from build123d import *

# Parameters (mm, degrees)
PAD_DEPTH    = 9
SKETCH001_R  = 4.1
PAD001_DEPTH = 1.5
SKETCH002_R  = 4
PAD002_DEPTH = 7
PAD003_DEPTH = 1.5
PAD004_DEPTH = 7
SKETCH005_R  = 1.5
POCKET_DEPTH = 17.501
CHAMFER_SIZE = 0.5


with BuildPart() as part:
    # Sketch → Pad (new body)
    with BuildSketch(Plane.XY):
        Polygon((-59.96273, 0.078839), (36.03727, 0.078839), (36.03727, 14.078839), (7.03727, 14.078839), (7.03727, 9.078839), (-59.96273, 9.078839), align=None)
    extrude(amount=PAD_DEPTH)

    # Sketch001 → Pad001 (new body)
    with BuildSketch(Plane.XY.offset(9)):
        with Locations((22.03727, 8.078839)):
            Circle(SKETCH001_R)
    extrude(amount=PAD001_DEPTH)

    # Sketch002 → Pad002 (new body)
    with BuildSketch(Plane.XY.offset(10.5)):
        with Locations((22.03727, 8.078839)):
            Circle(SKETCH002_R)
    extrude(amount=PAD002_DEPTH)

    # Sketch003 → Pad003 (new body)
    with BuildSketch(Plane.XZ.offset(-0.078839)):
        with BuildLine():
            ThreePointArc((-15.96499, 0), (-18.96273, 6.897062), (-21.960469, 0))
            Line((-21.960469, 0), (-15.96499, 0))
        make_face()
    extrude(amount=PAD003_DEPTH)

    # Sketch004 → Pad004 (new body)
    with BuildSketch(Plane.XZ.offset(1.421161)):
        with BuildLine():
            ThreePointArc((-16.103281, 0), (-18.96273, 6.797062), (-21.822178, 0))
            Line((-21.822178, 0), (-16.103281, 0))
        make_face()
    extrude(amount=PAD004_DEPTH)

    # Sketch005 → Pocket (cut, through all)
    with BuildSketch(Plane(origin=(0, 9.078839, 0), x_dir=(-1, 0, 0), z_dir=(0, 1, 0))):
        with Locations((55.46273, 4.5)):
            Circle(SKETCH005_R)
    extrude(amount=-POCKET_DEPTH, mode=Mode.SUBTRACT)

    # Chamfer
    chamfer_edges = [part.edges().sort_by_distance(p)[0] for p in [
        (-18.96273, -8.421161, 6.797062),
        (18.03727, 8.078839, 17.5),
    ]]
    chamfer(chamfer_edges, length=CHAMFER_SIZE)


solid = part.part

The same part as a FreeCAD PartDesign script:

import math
import FreeCAD as App
import Part
import Sketcher
from FreeCAD import Vector


def edges_at(feature, points):
    """Names of the edges that pass closest to the given points."""
    edges = feature.Shape.Edges
    near = lambda p: min(range(len(edges)), key=lambda i: edges[i].distToShape(Part.Vertex(*p))[0])
    return sorted({f"Edge{near(p) + 1}" for p in points})

doc = App.newDocument("Part")
body = doc.addObject("PartDesign::Body", "Body")

sketch1 = doc.addObject("Sketcher::SketchObject", "Sketch")
body.addObject(sketch1)
sketch1.AttachmentSupport = (doc.XY_Plane, [""])
sketch1.MapMode = "FlatFace"
sketch1.addGeometry(Part.LineSegment(Vector(-60, 0, 0), Vector(36, 0, 0)), False)
sketch1.addGeometry(Part.LineSegment(Vector(36, 0, 0), Vector(36, 14, 0)), False)
sketch1.addGeometry(Part.LineSegment(Vector(36, 14, 0), Vector(7, 14, 0)), False)
sketch1.addGeometry(Part.LineSegment(Vector(7, 14, 0), Vector(7, 9, 0)), False)
sketch1.addGeometry(Part.LineSegment(Vector(7, 9, 0), Vector(-60, 9, 0)), False)
sketch1.addGeometry(Part.LineSegment(Vector(-60, 9, 0), Vector(-60, 0, 0)), False)
sketch1.addConstraint(Sketcher.Constraint("Coincident", 0, 2, 1, 1))
sketch1.addConstraint(Sketcher.Constraint("Coincident", 1, 2, 2, 1))
sketch1.addConstraint(Sketcher.Constraint("Coincident", 2, 2, 3, 1))
sketch1.addConstraint(Sketcher.Constraint("Coincident", 3, 2, 4, 1))
sketch1.addConstraint(Sketcher.Constraint("Coincident", 4, 2, 5, 1))
sketch1.addConstraint(Sketcher.Constraint("Coincident", 5, 2, 0, 1))
sketch1.addConstraint(Sketcher.Constraint("Horizontal", 0))
sketch1.addConstraint(Sketcher.Constraint("Vertical", 1))
sketch1.addConstraint(Sketcher.Constraint("Horizontal", 2))
sketch1.addConstraint(Sketcher.Constraint("Vertical", 3))
sketch1.addConstraint(Sketcher.Constraint("Horizontal", 4))
sketch1.addConstraint(Sketcher.Constraint("Vertical", 5))
sketch1.addConstraint(Sketcher.Constraint("DistanceX", 0, 1, 0, 2, 96.0))
sketch1.addConstraint(Sketcher.Constraint("DistanceX", 2, 2, 2, 1, 29.0))
sketch1.addConstraint(Sketcher.Constraint("DistanceY", 1, 1, 1, 2, 14.0))
sketch1.addConstraint(Sketcher.Constraint("DistanceY", 3, 2, 3, 1, 5.0))
sketch1.addConstraint(Sketcher.Constraint("DistanceX", -1, 1, 0, 2, 36.03727))
sketch1.addConstraint(Sketcher.Constraint("DistanceY", -1, 1, 0, 2, 0.078839))
pad1 = doc.addObject("PartDesign::Pad", "Pad")
body.addObject(pad1)
pad1.Profile = sketch1
pad1.Length = 9

sketch2 = doc.addObject("Sketcher::SketchObject", "Sketch001")
body.addObject(sketch2)
sketch2.AttachmentSupport = (doc.XY_Plane, [""])
sketch2.MapMode = "FlatFace"
sketch2.AttachmentOffset = App.Placement(Vector(0, 0, 9), App.Rotation())
sketch2.addGeometry(Part.Circle(Vector(22, 8.1, 0), Vector(0, 0, 1), 4.1), False)
sketch2.addConstraint(Sketcher.Constraint("Diameter", 0, 8.2))
sketch2.addConstraint(Sketcher.Constraint("DistanceX", -1, 1, 0, 3, 22.03727))
sketch2.addConstraint(Sketcher.Constraint("DistanceY", -1, 1, 0, 3, 8.078839))
pad2 = doc.addObject("PartDesign::Pad", "Pad001")
body.addObject(pad2)
pad2.Profile = sketch2
pad2.Length = 1.5

sketch3 = doc.addObject("Sketcher::SketchObject", "Sketch002")
body.addObject(sketch3)
sketch3.AttachmentSupport = (doc.XY_Plane, [""])
sketch3.MapMode = "FlatFace"
sketch3.AttachmentOffset = App.Placement(Vector(0, 0, 10.5), App.Rotation())
sketch3.addGeometry(Part.Circle(Vector(22, 8.1, 0), Vector(0, 0, 1), 4), False)
sketch3.addConstraint(Sketcher.Constraint("Diameter", 0, 8.0))
sketch3.addConstraint(Sketcher.Constraint("DistanceX", -1, 1, 0, 3, 22.03727))
sketch3.addConstraint(Sketcher.Constraint("DistanceY", -1, 1, 0, 3, 8.078839))
pad3 = doc.addObject("PartDesign::Pad", "Pad002")
body.addObject(pad3)
pad3.Profile = sketch3
pad3.Length = 7

sketch4 = doc.addObject("Sketcher::SketchObject", "Sketch003")
body.addObject(sketch4)
sketch4.AttachmentSupport = (doc.XZ_Plane, [""])
sketch4.MapMode = "FlatFace"
sketch4.AttachmentOffset = App.Placement(Vector(0, 0, -0.078839), App.Rotation())
sketch4.addGeometry(Part.ArcOfCircle(Part.Circle(Vector(-19, 2.8, 0), Vector(0, 0, 1), 4.1), math.radians(-43), math.radians(223)), False)
sketch4.addGeometry(Part.LineSegment(Vector(-22, 0, 0), Vector(-16, 0, 0)), False)
sketch4.addConstraint(Sketcher.Constraint("Coincident", 0, 1, 1, 2))
sketch4.addConstraint(Sketcher.Constraint("Coincident", 1, 1, 0, 2))
sketch4.addConstraint(Sketcher.Constraint("Horizontal", 1))
sketch4.addConstraint(Sketcher.Constraint("PointOnObject", 0, 1, -1))
sketch4.addConstraint(Sketcher.Constraint("Radius", 0, 4.1))
sketch4.addConstraint(Sketcher.Constraint("DistanceX", 1, 1, 1, 2, 5.995479))
sketch4.addConstraint(Sketcher.Constraint("DistanceX", 0, 3, -1, 1, 18.962729))
pad4 = doc.addObject("PartDesign::Pad", "Pad003")
body.addObject(pad4)
pad4.Profile = sketch4
pad4.Length = 1.5

sketch5 = doc.addObject("Sketcher::SketchObject", "Sketch004")
body.addObject(sketch5)
sketch5.AttachmentSupport = (doc.XZ_Plane, [""])
sketch5.MapMode = "FlatFace"
sketch5.AttachmentOffset = App.Placement(Vector(0, 0, 1.421161), App.Rotation())
sketch5.addGeometry(Part.ArcOfCircle(Part.Circle(Vector(-19, 2.8, 0), Vector(0, 0, 1), 4), math.radians(-44), math.radians(224)), False)
sketch5.addGeometry(Part.LineSegment(Vector(-21.8, 0, 0), Vector(-16.1, 0, 0)), False)
sketch5.addConstraint(Sketcher.Constraint("Coincident", 0, 1, 1, 2))
sketch5.addConstraint(Sketcher.Constraint("Coincident", 1, 1, 0, 2))
sketch5.addConstraint(Sketcher.Constraint("Horizontal", 1))
sketch5.addConstraint(Sketcher.Constraint("PointOnObject", 0, 1, -1))
sketch5.addConstraint(Sketcher.Constraint("Radius", 0, 4.0))
sketch5.addConstraint(Sketcher.Constraint("DistanceX", 1, 1, 1, 2, 5.718897))
sketch5.addConstraint(Sketcher.Constraint("DistanceX", 0, 3, -1, 1, 18.962729))
pad5 = doc.addObject("PartDesign::Pad", "Pad004")
body.addObject(pad5)
pad5.Profile = sketch5
pad5.Length = 7

sketch6 = doc.addObject("Sketcher::SketchObject", "Sketch005")
body.addObject(sketch6)
sketch6.AttachmentSupport = (doc.XZ_Plane, [""])
sketch6.MapMode = "FlatFace"
sketch6.AttachmentOffset = App.Placement(Vector(0, 0, -9.078839), App.Rotation())
sketch6.addGeometry(Part.Circle(Vector(-55.5, 4.5, 0), Vector(0, 0, 1), 1.5), False)
sketch6.addConstraint(Sketcher.Constraint("Diameter", 0, 3.0))
sketch6.addConstraint(Sketcher.Constraint("DistanceY", -1, 1, 0, 3, 4.5))
sketch6.addConstraint(Sketcher.Constraint("DistanceX", 0, 3, -1, 1, 55.46273))
pocket1 = doc.addObject("PartDesign::Pocket", "Pocket")
body.addObject(pocket1)
pocket1.Profile = sketch6
pocket1.Type = "ThroughAll"
pocket1.Reversed = True
doc.recompute()

chamfer = doc.addObject("PartDesign::Chamfer", "Chamfer")
body.addObject(chamfer)
chamfer.Base = (pocket1, edges_at(pocket1, [(-18.963, -8.421, 6.797), (18.037, 8.079, 17.5)]))
chamfer.Size = 0.5

doc.recompute()
